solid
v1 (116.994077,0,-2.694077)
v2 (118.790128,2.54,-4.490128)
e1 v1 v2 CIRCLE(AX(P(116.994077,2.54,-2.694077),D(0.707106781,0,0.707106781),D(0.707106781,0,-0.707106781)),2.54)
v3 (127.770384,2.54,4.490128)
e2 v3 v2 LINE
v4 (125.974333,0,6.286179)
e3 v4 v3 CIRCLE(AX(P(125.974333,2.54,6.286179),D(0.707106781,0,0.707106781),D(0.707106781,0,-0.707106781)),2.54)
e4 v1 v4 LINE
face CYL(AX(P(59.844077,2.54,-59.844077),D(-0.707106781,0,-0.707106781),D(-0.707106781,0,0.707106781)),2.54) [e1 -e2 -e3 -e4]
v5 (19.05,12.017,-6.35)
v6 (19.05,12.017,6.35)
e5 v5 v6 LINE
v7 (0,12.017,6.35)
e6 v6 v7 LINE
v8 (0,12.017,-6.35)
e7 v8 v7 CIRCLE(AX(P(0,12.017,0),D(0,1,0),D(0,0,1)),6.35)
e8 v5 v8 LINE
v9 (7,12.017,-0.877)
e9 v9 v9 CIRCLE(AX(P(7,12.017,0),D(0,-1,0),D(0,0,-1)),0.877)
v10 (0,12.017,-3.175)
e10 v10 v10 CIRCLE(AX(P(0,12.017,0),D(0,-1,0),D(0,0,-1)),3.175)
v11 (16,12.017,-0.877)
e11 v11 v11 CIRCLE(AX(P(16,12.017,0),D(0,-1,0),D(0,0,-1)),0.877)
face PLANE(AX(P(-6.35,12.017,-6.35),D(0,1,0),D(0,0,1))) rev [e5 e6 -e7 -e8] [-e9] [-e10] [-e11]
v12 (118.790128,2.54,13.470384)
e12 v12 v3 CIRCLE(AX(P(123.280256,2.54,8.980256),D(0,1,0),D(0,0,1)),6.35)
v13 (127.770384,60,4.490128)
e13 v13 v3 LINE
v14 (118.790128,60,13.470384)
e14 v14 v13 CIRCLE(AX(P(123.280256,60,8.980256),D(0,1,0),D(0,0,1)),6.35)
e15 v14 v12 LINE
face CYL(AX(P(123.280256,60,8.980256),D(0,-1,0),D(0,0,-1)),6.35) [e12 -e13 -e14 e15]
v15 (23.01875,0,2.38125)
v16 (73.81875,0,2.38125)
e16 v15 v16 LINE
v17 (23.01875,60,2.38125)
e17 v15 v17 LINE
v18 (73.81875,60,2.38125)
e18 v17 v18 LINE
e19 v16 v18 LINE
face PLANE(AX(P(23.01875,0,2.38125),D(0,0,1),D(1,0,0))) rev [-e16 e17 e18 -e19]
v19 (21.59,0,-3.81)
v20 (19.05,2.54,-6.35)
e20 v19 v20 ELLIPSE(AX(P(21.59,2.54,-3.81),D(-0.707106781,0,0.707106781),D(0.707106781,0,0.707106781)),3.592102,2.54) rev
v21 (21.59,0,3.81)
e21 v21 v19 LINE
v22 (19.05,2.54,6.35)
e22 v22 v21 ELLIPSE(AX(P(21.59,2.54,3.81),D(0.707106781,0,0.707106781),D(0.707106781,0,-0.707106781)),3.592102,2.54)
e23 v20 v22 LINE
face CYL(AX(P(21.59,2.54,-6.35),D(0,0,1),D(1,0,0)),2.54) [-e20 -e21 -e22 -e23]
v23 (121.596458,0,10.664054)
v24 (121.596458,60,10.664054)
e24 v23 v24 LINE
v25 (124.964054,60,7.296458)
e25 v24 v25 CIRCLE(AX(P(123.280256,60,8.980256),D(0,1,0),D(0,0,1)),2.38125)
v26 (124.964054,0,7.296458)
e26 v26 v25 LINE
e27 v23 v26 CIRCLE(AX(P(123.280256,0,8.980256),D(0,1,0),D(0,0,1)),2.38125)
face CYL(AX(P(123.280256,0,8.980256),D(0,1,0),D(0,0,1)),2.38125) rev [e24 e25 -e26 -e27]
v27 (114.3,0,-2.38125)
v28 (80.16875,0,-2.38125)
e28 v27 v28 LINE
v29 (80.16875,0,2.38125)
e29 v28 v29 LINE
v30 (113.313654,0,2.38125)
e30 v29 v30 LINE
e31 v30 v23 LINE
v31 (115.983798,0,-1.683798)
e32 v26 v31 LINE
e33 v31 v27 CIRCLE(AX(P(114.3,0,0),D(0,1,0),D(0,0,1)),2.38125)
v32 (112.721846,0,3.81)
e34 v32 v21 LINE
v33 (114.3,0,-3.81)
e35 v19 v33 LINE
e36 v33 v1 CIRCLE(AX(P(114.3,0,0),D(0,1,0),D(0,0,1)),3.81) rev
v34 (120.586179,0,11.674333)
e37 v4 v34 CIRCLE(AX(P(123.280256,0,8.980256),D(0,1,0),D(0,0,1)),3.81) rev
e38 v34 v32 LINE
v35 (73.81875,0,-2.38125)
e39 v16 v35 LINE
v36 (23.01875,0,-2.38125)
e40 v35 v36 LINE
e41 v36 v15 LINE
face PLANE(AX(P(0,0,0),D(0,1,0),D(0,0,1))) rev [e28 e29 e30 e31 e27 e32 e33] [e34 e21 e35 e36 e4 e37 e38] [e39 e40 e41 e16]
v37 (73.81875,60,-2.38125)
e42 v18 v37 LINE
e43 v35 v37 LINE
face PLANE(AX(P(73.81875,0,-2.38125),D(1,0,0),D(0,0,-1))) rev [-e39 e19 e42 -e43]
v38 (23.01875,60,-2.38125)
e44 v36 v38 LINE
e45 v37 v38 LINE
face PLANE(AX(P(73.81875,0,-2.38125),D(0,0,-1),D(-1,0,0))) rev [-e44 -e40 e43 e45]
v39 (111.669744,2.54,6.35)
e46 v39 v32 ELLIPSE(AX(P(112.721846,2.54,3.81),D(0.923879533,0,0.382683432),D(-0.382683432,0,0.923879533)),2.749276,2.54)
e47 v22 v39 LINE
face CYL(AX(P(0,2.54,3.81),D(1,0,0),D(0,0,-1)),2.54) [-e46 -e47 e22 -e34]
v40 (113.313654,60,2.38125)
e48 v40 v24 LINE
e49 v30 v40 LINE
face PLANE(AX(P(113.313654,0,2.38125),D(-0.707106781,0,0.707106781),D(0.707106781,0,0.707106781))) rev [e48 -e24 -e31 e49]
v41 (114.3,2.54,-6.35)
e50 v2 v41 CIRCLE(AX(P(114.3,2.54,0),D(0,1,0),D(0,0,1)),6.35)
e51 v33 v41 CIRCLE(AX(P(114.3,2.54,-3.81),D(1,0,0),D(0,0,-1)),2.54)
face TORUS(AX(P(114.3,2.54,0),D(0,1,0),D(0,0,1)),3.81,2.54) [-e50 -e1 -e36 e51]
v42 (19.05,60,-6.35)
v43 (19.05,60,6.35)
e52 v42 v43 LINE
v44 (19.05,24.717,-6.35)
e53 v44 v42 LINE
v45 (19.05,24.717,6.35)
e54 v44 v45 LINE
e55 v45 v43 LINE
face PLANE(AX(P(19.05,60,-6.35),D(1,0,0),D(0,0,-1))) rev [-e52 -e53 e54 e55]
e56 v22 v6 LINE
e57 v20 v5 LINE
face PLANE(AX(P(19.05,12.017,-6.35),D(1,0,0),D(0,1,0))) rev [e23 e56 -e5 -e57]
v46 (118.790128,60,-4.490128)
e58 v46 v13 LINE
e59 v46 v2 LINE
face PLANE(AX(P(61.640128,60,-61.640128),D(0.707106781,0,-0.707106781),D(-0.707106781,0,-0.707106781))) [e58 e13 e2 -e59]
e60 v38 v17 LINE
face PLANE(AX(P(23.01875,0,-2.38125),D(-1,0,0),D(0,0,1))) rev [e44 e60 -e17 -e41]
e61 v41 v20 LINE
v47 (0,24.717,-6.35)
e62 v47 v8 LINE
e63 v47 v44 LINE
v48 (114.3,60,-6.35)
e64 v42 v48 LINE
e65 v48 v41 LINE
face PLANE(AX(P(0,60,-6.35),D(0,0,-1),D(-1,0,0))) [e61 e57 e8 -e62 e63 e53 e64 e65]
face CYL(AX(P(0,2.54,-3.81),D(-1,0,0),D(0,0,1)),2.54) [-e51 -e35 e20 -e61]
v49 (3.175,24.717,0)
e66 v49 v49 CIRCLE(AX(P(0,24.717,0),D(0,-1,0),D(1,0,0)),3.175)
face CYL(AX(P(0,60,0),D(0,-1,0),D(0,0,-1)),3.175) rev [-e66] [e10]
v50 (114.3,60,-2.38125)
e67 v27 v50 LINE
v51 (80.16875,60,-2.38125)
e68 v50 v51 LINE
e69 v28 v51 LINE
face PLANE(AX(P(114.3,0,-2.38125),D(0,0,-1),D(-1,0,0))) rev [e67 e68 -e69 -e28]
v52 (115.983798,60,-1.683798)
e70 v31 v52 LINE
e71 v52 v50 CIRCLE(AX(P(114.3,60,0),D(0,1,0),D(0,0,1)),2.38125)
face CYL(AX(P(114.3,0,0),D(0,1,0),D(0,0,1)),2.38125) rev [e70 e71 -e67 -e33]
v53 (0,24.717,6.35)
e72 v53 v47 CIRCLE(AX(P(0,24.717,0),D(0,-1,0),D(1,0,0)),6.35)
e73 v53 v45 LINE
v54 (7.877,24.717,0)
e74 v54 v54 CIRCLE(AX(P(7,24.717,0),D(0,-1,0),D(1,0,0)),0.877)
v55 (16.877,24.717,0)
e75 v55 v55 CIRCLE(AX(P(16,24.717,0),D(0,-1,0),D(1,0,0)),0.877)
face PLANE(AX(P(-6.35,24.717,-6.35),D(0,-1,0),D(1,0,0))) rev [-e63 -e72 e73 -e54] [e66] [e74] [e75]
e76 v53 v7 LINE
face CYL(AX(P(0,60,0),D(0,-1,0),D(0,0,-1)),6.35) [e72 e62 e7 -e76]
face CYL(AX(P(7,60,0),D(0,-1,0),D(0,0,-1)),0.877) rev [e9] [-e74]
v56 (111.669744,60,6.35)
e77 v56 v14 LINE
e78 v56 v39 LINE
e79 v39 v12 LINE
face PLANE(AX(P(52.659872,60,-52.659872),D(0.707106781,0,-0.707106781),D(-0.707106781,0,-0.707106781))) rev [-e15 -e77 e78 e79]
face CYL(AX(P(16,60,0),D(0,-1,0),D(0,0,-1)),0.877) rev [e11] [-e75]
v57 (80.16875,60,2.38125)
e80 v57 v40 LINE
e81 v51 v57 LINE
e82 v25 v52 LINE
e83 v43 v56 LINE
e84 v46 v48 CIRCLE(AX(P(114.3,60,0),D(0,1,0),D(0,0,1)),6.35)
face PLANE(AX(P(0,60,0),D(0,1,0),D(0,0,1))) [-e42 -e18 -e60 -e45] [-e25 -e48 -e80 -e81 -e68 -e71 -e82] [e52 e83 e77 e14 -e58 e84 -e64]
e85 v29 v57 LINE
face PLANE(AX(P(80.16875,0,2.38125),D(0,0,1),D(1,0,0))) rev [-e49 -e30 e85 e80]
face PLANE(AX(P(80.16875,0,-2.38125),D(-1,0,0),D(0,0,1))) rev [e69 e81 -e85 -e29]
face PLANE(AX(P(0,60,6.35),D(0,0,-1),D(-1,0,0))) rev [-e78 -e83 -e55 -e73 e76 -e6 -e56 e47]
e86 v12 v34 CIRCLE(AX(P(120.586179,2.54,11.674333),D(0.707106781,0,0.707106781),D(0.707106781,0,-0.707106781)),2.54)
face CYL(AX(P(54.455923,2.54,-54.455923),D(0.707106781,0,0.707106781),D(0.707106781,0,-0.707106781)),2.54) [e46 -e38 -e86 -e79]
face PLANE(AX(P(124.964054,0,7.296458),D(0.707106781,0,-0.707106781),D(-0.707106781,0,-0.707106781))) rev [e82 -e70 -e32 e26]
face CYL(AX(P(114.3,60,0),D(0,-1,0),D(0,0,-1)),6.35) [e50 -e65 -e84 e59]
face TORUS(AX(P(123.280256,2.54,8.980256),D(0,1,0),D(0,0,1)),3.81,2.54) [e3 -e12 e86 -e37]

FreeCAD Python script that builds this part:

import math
import FreeCAD as App
import Part
import Sketcher
from FreeCAD import Vector
Q = App.Units.Quantity


def edges_at(feature, points):
    """Names of the edges that pass closest to the given points."""
    edges = feature.Shape.Edges
    near = lambda p: min(range(len(edges)), key=lambda i: edges[i].distToShape(Part.Vertex(*p))[0])
    return sorted({f"Edge{near(p) + 1}" for p in points})

doc = App.newDocument("Part")
params = doc.addObject("Spreadsheet::Sheet", "Params")
for row, (alias, value) in enumerate([
    ("sketch1_radius", "0.25 in"),
    ("sketch1_width", "4.5 in"),
    ("pad1_length", "60 mm"),
    ("sketch2_width", "1 in"),
    ("sketch4_diameter", "0.25 in"),
    ("sketch5_width", "2 in"),
    ("sketch5_radius", "0.09375 in"),
    ("sketch5_length", "0.5 in"),
    ("sketch5_width2", "1.34375 in"),
    ("sketch5_height", "0.1875 in"),
    ("fillet_radius", "0.1 in"),
], start=1):
    params.set(f"A{row}", alias)
    params.set(f"B{row}", "=" + value)
    params.setAlias(f"B{row}", alias)

body = doc.addObject("PartDesign::Body", "Body")

# Sketch on XZ plane
sketch1 = body.newObject("Sketcher::SketchObject", "Sketch")
sketch1.AttachmentSupport = (doc.getObject("XZ_Plane"), [""])
sketch1.MapMode = "FlatFace"
sketch1.addGeometry(Part.ArcOfCircle(Part.Circle(Vector(0, 0, 0), Vector(0, 0, 1), 6.35), math.radians(90), math.radians(270)), False)
sketch1.addGeometry(Part.LineSegment(Vector(0, 6.35, 0), Vector(111.669744, 6.35, 0)), False)
sketch1.addGeometry(Part.LineSegment(Vector(111.669744, 6.35, 0), Vector(118.790128, 13.470384, 0)), False)
sketch1.addGeometry(Part.ArcOfCircle(Part.Circle(Vector(123.280256, 8.980256, 0), Vector(0, 0, 1), 6.35), math.radians(-45), math.radians(135)), False)
sketch1.addGeometry(Part.LineSegment(Vector(127.770384, 4.490128, 0), Vector(118.790128, -4.490128, 0)), False)
sketch1.addGeometry(Part.ArcOfCircle(Part.Circle(Vector(114.3, 0, 0), Vector(0, 0, 1), 6.35), math.radians(-90), math.radians(-45)), False)
sketch1.addGeometry(Part.LineSegment(Vector(114.3, -6.35, 0), Vector(0, -6.35, 0)), False)
sketch1.addConstraint(Sketcher.Constraint("Tangent", 0, 1, 1, 1))
sketch1.addConstraint(Sketcher.Constraint("Coincident", 1, 2, 2, 1))
sketch1.addConstraint(Sketcher.Constraint("Tangent", 2, 2, 3, 2))
sketch1.addConstraint(Sketcher.Constraint("Tangent", 3, 1, 4, 1))
sketch1.addConstraint(Sketcher.Constraint("Tangent", 4, 2, 5, 2))
sketch1.addConstraint(Sketcher.Constraint("Tangent", 5, 1, 6, 1))
sketch1.addConstraint(Sketcher.Constraint("Tangent", 6, 2, 0, 2))
sketch1.addConstraint(Sketcher.Constraint("Horizontal", 1))
sketch1.addConstraint(Sketcher.Constraint("Horizontal", 6))
sketch1.addConstraint(Sketcher.Constraint("Coincident", 0, 3, -1, 1))
sketch1.addConstraint(Sketcher.Constraint("Equal", 0, 3))
sketch1.addConstraint(Sketcher.Constraint("Equal", 3, 5))
sketch1.addConstraint(Sketcher.Constraint("Parallel", 2, 4))
sketch1.addConstraint(Sketcher.Constraint("Vertical", 2, 2, 4, 2))
sketch1.addConstraint(Sketcher.Constraint("Radius", 0, Q("0.25 in")))
sketch1.addConstraint(Sketcher.Constraint("DistanceX", 6, 2, 6, 1, Q("4.5 in")))
sketch1.addConstraint(Sketcher.Constraint("Angle", 2, Q("45 deg")))
sketch1.setExpression("Constraints[14]", "Params.sketch1_radius")
sketch1.setExpression("Constraints[15]", "Params.sketch1_width")
pad1 = body.newObject("PartDesign::Pad", "Pad")
pad1.Profile = sketch1
pad1.setExpression("Length", "Params.pad1_length")
pad1.Reversed = True

# Sketch on XY plane
sketch2 = body.newObject("Sketcher::SketchObject", "Sketch001")
sketch2.AttachmentSupport = (doc.getObject("XY_Plane"), [""])
sketch2.MapMode = "FlatFace"
sketch2.AttachmentOffset = App.Placement(Vector(0, 0, 0.25 * 25.4), App.Rotation())
sketch2.addGeometry(Part.LineSegment(Vector(-6.35, 12.017, 0), Vector(-6.35, 0, 0)), False)
sketch2.addGeometry(Part.LineSegment(Vector(-6.35, 0, 0), Vector(19.05, 0, 0)), False)
sketch2.addGeometry(Part.LineSegment(Vector(19.05, 0, 0), Vector(19.05, 12.017, 0)), False)
sketch2.addGeometry(Part.LineSegment(Vector(19.05, 12.017, 0), Vector(-6.35, 12.017, 0)), False)
sketch2.addGeometry(Part.LineSegment(Vector(-6.35, 60, 0), Vector(-6.35, 24.717, 0)), False)
sketch2.addGeometry(Part.LineSegment(Vector(-6.35, 24.717, 0), Vector(19.05, 24.717, 0)), False)
sketch2.addGeometry(Part.LineSegment(Vector(19.05, 24.717, 0), Vector(19.05, 60, 0)), False)
sketch2.addGeometry(Part.LineSegment(Vector(19.05, 60, 0), Vector(-6.35, 60, 0)), False)
sketch2.addConstraint(Sketcher.Constraint("Coincident", 0, 2, 1, 1))
sketch2.addConstraint(Sketcher.Constraint("Coincident", 1, 2, 2, 1))
sketch2.addConstraint(Sketcher.Constraint("Coincident", 2, 2, 3, 1))
sketch2.addConstraint(Sketcher.Constraint("Coincident", 3, 2, 0, 1))
sketch2.addConstraint(Sketcher.Constraint("Coincident", 4, 2, 5, 1))
sketch2.addConstraint(Sketcher.Constraint("Coincident", 5, 2, 6, 1))
sketch2.addConstraint(Sketcher.Constraint("Coincident", 6, 2, 7, 1))
sketch2.addConstraint(Sketcher.Constraint("Coincident", 7, 2, 4, 1))
sketch2.addConstraint(Sketcher.Constraint("Vertical", 0))
sketch2.addConstraint(Sketcher.Constraint("Horizontal", 1))
sketch2.addConstraint(Sketcher.Constraint("Vertical", 2))
sketch2.addConstraint(Sketcher.Constraint("Horizontal", 3))
sketch2.addConstraint(Sketcher.Constraint("Vertical", 4))
sketch2.addConstraint(Sketcher.Constraint("Horizontal", 5))
sketch2.addConstraint(Sketcher.Constraint("Vertical", 6))
sketch2.addConstraint(Sketcher.Constraint("Horizontal", 7))
sketch2.addConstraint(Sketcher.Constraint("PointOnObject", 0, 2, -1))
sketch2.addConstraint(Sketcher.Constraint("Vertical", 3, 2, 4, 2))
sketch2.addConstraint(Sketcher.Constraint("Vertical", 2, 2, 5, 2))
sketch2.addConstraint(Sketcher.Constraint("DistanceX", 1, 1, 1, 2, Q("1 in")))
sketch2.addConstraint(Sketcher.Constraint("DistanceY", 3, 2, 4, 2, Q("0.5 in")))
sketch2.addConstraint(Sketcher.Constraint("DistanceX", 0, 2, -1, 1, Q("0.25 in")))
sketch2.addConstraint(Sketcher.Constraint("DistanceY", 0, 2, 0, 1, 12.017))
sketch2.addConstraint(Sketcher.Constraint("DistanceY", 4, 2, 4, 1, 35.283))
sketch2.setExpression("Constraints[19]", "Params.sketch2_width")
pocket1 = body.newObject("PartDesign::Pocket", "Pocket")
pocket1.Profile = sketch2
pocket1.Type = "ThroughAll"

# Sketch on XZ plane
sketch3 = body.newObject("Sketcher::SketchObject", "Sketch002")
sketch3.AttachmentSupport = (doc.getObject("XZ_Plane"), [""])
sketch3.MapMode = "FlatFace"
sketch3.AttachmentOffset = App.Placement(Vector(0, 0, -12.017), App.Rotation())
sketch3.addGeometry(Part.Circle(Vector(7, 0, 0), Vector(0, 0, 1), 0.877), False)
sketch3.addGeometry(Part.Circle(Vector(16, 0, 0), Vector(0, 0, 1), 0.877), False)
sketch3.addConstraint(Sketcher.Constraint("Equal", 0, 1))
sketch3.addConstraint(Sketcher.Constraint("PointOnObject", 0, 3, -1))
sketch3.addConstraint(Sketcher.Constraint("PointOnObject", 1, 3, -1))
sketch3.addConstraint(Sketcher.Constraint("Diameter", 0, 1.754))
sketch3.addConstraint(Sketcher.Constraint("DistanceX", -1, 1, 0, 3, 7.0))
sketch3.addConstraint(Sketcher.Constraint("DistanceX", -1, 1, 1, 3, 16.0))
pocket2 = body.newObject("PartDesign::Pocket", "Pocket001")
pocket2.Profile = sketch3
pocket2.Type = "ThroughAll"

# Sketch on XZ plane
sketch4 = body.newObject("Sketcher::SketchObject", "Sketch003")
sketch4.AttachmentSupport = (doc.getObject("XZ_Plane"), [""])
sketch4.MapMode = "FlatFace"
sketch4.AttachmentOffset = App.Placement(Vector(0, 0, -12.017), App.Rotation())
sketch4.addGeometry(Part.Circle(Vector(0, 0, 0), Vector(0, 0, 1), 3.175), False)
sketch4.addConstraint(Sketcher.Constraint("Coincident", 0, 3, -1, 1))
sketch4.addConstraint(Sketcher.Constraint("Diameter", 0, Q("0.25 in")))
sketch4.setExpression("Constraints[1]", "Params.sketch4_diameter")
pocket3 = body.newObject("PartDesign::Pocket", "Pocket002")
pocket3.Profile = sketch4
pocket3.Type = "ThroughAll"

# Sketch on XZ plane
sketch5 = body.newObject("Sketcher::SketchObject", "Sketch004")
sketch5.AttachmentSupport = (doc.getObject("XZ_Plane"), [""])
sketch5.MapMode = "FlatFace"
sketch5.AttachmentOffset = App.Placement(Vector(0, 0, -60), App.Rotation())
sketch5.addGeometry(Part.LineSegment(Vector(23.01875, -2.38125, 0), Vector(23.01875, 2.38125, 0)), False)
sketch5.addGeometry(Part.LineSegment(Vector(23.01875, 2.38125, 0), Vector(73.81875, 2.38125, 0)), False)
sketch5.addGeometry(Part.LineSegment(Vector(73.81875, 2.38125, 0), Vector(73.81875, -2.38125, 0)), False)
sketch5.addGeometry(Part.LineSegment(Vector(73.81875, -2.38125, 0), Vector(23.01875, -2.38125, 0)), False)
sketch5.addGeometry(Part.LineSegment(Vector(80.16875, -2.38125, 0), Vector(80.16875, 2.38125, 0)), False)
sketch5.addGeometry(Part.LineSegment(Vector(80.16875, 2.38125, 0), Vector(113.313654, 2.38125, 0)), False)
sketch5.addGeometry(Part.LineSegment(Vector(113.313654, 2.38125, 0), Vector(121.596458, 10.664054, 0)), False)
sketch5.addGeometry(Part.ArcOfCircle(Part.Circle(Vector(123.280256, 8.980256, 0), Vector(0, 0, 1), 2.38125), math.radians(-45), math.radians(135)), False)
sketch5.addGeometry(Part.LineSegment(Vector(124.964054, 7.296458, 0), Vector(115.983798, -1.683798, 0)), False)
sketch5.addGeometry(Part.ArcOfCircle(Part.Circle(Vector(114.3, 0, 0), Vector(0, 0, 1), 2.38125), math.radians(-90), math.radians(-45)), False)
sketch5.addGeometry(Part.LineSegment(Vector(114.3, -2.38125, 0), Vector(80.16875, -2.38125, 0)), False)
sketch5.addConstraint(Sketcher.Constraint("Coincident", 0, 2, 1, 1))
sketch5.addConstraint(Sketcher.Constraint("Coincident", 1, 2, 2, 1))
sketch5.addConstraint(Sketcher.Constraint("Coincident", 2, 2, 3, 1))
sketch5.addConstraint(Sketcher.Constraint("Coincident", 3, 2, 0, 1))
sketch5.addConstraint(Sketcher.Constraint("Coincident", 4, 2, 5, 1))
sketch5.addConstraint(Sketcher.Constraint("Coincident", 5, 2, 6, 1))
sketch5.addConstraint(Sketcher.Constraint("Tangent", 6, 2, 7, 2))
sketch5.addConstraint(Sketcher.Constraint("Tangent", 7, 1, 8, 1))
sketch5.addConstraint(Sketcher.Constraint("Tangent", 8, 2, 9, 2))
sketch5.addConstraint(Sketcher.Constraint("Tangent", 9, 1, 10, 1))
sketch5.addConstraint(Sketcher.Constraint("Coincident", 10, 2, 4, 1))
sketch5.addConstraint(Sketcher.Constraint("Vertical", 0))
sketch5.addConstraint(Sketcher.Constraint("Horizontal", 1))
sketch5.addConstraint(Sketcher.Constraint("Vertical", 2))
sketch5.addConstraint(Sketcher.Constraint("Horizontal", 3))
sketch5.addConstraint(Sketcher.Constraint("Vertical", 4))
sketch5.addConstraint(Sketcher.Constraint("Horizontal", 5))
sketch5.addConstraint(Sketcher.Constraint("Horizontal", 10))
sketch5.addConstraint(Sketcher.Constraint("Equal", 7, 9))
sketch5.addConstraint(Sketcher.Constraint("PointOnObject", 9, 3, -1))
sketch5.addConstraint(Sketcher.Constraint("Parallel", 6, 8))
sketch5.addConstraint(Sketcher.Constraint("Horizontal", 1, 2, 4, 2))
sketch5.addConstraint(Sketcher.Constraint("Horizontal", 3, 2, 9, 1))
sketch5.addConstraint(Sketcher.Constraint("DistanceX", 1, 1, 1, 2, Q("2 in")))
sketch5.addConstraint(Sketcher.Constraint("Angle", 6, Q("45 deg")))
sketch5.addConstraint(Sketcher.Constraint("Radius", 7, Q("0.09375 in")))
sketch5.addConstraint(Sketcher.Constraint("Distance", 8, Q("0.5 in")))
sketch5.addConstraint(Sketcher.Constraint("DistanceX", -1, 1, 9, 3, Q("4.5 in")))
sketch5.addConstraint(Sketcher.Constraint("DistanceX", 10, 2, 10, 1, Q("1.34375 in")))
sketch5.addConstraint(Sketcher.Constraint("DistanceY", 0, 1, 0, 2, Q("0.1875 in")))
sketch5.addConstraint(Sketcher.Constraint("DistanceX", 1, 2, 4, 2, Q("0.25 in")))
sketch5.setExpression("Constraints[23]", "Params.sketch5_width")
sketch5.setExpression("Constraints[25]", "Params.sketch5_radius")
sketch5.setExpression("Constraints[26]", "Params.sketch5_length")
sketch5.setExpression("Constraints[28]", "Params.sketch5_width2")
sketch5.setExpression("Constraints[29]", "Params.sketch5_height")
pocket4 = body.newObject("PartDesign::Pocket", "Pocket003")
pocket4.Profile = sketch5
pocket4.Type = "ThroughAll"
pocket4.Reversed = True
doc.recompute()

fillet = body.newObject("PartDesign::Fillet", "Fillet")
fillet.Base = (pocket4, edges_at(pocket4, [
    (116.73, 0, -5.867),
    (123.28, 0, 0),
    (65.36, 0, 6.35),
    (66.675, 0, -6.35),
    (19.05, 0, 0),
    (127.77, 0, 13.47),
    (115.23, 0, 9.91),
]))
fillet.setExpression("Radius", "Params.fillet_radius")

doc.recompute()
